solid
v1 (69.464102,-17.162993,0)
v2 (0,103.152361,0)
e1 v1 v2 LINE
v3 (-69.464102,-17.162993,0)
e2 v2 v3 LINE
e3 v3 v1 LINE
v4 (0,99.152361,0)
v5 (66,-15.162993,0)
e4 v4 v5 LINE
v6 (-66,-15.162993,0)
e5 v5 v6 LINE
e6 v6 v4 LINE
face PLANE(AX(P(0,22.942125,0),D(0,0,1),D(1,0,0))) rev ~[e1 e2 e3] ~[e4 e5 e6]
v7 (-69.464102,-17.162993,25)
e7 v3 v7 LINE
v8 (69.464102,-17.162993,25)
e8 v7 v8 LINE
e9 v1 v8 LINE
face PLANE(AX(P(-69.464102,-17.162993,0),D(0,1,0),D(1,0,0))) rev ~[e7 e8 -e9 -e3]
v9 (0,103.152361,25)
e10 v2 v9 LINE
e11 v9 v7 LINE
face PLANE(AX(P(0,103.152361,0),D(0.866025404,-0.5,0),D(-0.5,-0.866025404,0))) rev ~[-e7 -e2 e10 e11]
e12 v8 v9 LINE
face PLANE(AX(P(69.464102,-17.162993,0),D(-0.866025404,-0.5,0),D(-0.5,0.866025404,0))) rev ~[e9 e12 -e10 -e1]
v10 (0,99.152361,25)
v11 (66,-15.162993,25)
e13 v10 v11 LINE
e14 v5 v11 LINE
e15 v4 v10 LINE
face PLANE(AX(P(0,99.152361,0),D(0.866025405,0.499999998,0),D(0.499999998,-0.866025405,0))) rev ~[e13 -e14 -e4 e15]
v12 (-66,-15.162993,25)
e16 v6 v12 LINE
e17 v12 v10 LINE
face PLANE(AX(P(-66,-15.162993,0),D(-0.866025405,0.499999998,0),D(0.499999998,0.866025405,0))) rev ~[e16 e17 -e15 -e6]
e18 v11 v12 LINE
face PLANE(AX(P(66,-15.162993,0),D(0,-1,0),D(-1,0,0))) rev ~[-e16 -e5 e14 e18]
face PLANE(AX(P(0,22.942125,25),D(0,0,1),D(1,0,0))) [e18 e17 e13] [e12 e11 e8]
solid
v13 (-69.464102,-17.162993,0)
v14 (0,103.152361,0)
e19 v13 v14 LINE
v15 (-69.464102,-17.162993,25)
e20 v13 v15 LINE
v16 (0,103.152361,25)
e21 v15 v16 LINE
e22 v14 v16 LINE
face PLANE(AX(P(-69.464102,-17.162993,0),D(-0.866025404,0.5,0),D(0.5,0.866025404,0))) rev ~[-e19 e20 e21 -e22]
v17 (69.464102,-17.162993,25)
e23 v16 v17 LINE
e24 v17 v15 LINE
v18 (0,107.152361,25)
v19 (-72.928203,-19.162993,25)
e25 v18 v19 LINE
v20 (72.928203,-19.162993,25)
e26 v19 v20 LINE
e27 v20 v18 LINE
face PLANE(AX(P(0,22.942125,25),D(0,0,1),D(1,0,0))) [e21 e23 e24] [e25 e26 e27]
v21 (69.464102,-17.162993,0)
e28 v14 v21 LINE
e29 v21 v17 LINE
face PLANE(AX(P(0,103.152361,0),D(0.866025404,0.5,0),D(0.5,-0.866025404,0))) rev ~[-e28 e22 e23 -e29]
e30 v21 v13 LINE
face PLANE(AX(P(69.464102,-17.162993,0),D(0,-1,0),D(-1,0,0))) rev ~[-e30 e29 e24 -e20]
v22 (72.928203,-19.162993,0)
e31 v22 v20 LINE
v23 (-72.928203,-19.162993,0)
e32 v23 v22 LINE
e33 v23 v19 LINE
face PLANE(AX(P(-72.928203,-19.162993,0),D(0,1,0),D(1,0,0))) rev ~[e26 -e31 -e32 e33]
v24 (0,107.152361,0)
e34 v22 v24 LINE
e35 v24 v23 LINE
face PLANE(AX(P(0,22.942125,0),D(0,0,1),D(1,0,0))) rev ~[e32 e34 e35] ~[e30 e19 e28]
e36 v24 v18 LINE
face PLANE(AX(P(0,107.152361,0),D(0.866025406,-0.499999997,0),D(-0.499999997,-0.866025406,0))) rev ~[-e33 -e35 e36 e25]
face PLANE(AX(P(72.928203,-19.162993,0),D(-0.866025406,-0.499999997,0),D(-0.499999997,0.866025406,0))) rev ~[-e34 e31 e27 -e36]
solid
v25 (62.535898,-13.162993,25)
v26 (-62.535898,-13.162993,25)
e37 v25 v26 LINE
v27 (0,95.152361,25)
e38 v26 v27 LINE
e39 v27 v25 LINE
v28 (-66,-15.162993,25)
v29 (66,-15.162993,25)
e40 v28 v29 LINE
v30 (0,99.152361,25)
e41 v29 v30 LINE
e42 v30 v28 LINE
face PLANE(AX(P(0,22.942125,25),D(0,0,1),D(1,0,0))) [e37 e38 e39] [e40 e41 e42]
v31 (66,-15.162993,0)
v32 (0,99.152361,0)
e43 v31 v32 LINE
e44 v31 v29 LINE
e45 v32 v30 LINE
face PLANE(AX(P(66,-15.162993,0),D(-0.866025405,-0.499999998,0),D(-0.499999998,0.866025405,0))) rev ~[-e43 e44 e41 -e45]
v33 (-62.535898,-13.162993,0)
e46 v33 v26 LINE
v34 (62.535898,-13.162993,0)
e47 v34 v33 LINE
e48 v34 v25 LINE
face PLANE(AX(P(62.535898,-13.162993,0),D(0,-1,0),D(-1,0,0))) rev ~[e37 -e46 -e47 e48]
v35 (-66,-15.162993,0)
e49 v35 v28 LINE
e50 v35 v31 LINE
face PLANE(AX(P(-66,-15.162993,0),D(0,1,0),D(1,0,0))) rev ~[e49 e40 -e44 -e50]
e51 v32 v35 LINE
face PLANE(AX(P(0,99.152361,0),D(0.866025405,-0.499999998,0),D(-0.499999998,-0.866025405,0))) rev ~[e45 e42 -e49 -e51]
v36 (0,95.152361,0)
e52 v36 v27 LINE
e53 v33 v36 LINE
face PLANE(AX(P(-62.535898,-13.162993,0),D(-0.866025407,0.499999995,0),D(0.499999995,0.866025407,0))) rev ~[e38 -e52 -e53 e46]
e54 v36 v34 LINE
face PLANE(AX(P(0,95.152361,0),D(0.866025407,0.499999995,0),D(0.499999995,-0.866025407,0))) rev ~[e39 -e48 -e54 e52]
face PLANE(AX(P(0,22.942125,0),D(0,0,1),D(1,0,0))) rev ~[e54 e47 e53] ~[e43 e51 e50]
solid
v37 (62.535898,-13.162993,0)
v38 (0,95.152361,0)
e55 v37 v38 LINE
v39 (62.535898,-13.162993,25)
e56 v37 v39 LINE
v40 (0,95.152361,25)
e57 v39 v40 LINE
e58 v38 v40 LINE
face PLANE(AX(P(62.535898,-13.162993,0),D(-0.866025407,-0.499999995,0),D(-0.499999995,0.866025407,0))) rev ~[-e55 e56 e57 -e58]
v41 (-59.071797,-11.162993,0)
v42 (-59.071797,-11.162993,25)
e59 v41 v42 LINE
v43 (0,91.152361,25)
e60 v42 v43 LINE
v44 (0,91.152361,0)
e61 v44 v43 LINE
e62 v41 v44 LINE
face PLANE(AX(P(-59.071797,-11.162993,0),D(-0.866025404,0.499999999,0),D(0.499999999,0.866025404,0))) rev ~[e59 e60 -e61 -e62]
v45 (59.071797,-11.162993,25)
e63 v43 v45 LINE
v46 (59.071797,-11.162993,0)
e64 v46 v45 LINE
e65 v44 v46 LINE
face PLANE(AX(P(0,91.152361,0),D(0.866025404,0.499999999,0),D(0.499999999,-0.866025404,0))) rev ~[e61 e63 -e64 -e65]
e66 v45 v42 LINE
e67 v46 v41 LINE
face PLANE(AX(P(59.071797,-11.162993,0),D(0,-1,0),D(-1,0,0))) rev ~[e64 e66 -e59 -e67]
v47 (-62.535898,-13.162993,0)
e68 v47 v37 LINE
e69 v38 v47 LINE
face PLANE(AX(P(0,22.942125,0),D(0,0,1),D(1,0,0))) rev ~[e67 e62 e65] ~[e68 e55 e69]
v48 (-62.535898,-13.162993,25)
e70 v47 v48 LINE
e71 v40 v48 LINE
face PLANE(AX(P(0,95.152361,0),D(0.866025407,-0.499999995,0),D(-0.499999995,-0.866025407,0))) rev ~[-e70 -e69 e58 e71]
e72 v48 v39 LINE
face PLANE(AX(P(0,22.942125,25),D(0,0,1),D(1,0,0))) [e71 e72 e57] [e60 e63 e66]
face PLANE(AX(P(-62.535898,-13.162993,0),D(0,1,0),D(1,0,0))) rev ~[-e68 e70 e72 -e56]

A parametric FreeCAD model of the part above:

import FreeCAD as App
import Part
import Sketcher
from FreeCAD import Vector
Q = App.Units.Quantity

doc = App.newDocument("Part")
body = doc.addObject("PartDesign::Body", "Body")

# Sketch on XY plane
sketch1 = doc.addObject("Sketcher::SketchObject", "Sketch")
body.addObject(sketch1)
sketch1.AttachmentSupport = (doc.XY_Plane, [""])
sketch1.MapMode = "FlatFace"
sketch1.addGeometry([
    Part.LineSegment(Vector(73, -19, 0), Vector(0, 107, 0)),  # 0
    Part.LineSegment(Vector(0, 107, 0), Vector(-73, -19, 0)),  # 1
    Part.LineSegment(Vector(-73, -19, 0), Vector(73, -19, 0)),  # 2
    Part.LineSegment(Vector(69, -17, 0), Vector(-69, -17, 0)),  # 3
    Part.LineSegment(Vector(-69, -17, 0), Vector(0, 103, 0)),  # 4
    Part.LineSegment(Vector(0, 103, 0), Vector(69, -17, 0)),  # 5
], False)
sketch1.addConstraint([
    Sketcher.Constraint("Coincident", 0, 2, 1, 1),
    Sketcher.Constraint("Coincident", 1, 2, 2, 1),
    Sketcher.Constraint("Coincident", 2, 2, 0, 1),
    Sketcher.Constraint("Coincident", 3, 2, 4, 1),
    Sketcher.Constraint("Coincident", 4, 2, 5, 1),
    Sketcher.Constraint("Coincident", 5, 2, 3, 1),
    Sketcher.Constraint("Horizontal", 2),
    Sketcher.Constraint("Horizontal", 3),
    Sketcher.Constraint("PointOnObject", 0, 2, -2),
    Sketcher.Constraint("PointOnObject", 4, 2, -2),
    Sketcher.Constraint("Parallel", 1, 4),
    Sketcher.Constraint("Parallel", 0, 5),
    Sketcher.Constraint("Equal", 0, 1),
    Sketcher.Constraint("Angle", 0, Q("120 deg")),
    Sketcher.Constraint("DistanceY", 1, 2, 3, 2, Q("2 mm")),
    Sketcher.Constraint("DistanceY", 4, 2, 0, 2, Q("4 mm")),
    Sketcher.Constraint("DistanceX", 3, 2, -1, 1, Q("69.464102 mm")),
    Sketcher.Constraint("DistanceY", -1, 1, 0, 2, Q("107.152361 mm")),
])
pad1 = doc.addObject("PartDesign::Pad", "Pad")
body.addObject(pad1)
pad1.Profile = sketch1
pad1.Length = 25
body2 = doc.addObject("PartDesign::Body", "Body001")

# Sketch on XY plane
sketch2 = doc.addObject("Sketcher::SketchObject", "Sketch001")
body2.addObject(sketch2)
sketch2.AttachmentSupport = (doc.getObject("XY_Plane001"), [""])
sketch2.MapMode = "FlatFace"
sketch2.addGeometry([
    Part.LineSegment(Vector(69, -17, 0), Vector(0, 103, 0)),  # 0
    Part.LineSegment(Vector(0, 103, 0), Vector(-69, -17, 0)),  # 1
    Part.LineSegment(Vector(-69, -17, 0), Vector(69, -17, 0)),  # 2
    Part.LineSegment(Vector(0, 99, 0), Vector(66, -15, 0)),  # 3
    Part.LineSegment(Vector(66, -15, 0), Vector(-66, -15, 0)),  # 4
    Part.LineSegment(Vector(-66, -15, 0), Vector(0, 99, 0)),  # 5
], False)
sketch2.addConstraint([
    Sketcher.Constraint("Coincident", 0, 2, 1, 1),
    Sketcher.Constraint("Coincident", 1, 2, 2, 1),
    Sketcher.Constraint("Coincident", 2, 2, 0, 1),
    Sketcher.Constraint("Coincident", 3, 2, 4, 1),
    Sketcher.Constraint("Coincident", 4, 2, 5, 1),
    Sketcher.Constraint("Coincident", 5, 2, 3, 1),
    Sketcher.Constraint("Horizontal", 2),
    Sketcher.Constraint("Horizontal", 4),
    Sketcher.Constraint("PointOnObject", 0, 2, -2),
    Sketcher.Constraint("PointOnObject", 5, 2, -2),
    Sketcher.Constraint("Parallel", 0, 3),
    Sketcher.Constraint("Parallel", 1, 5),
    Sketcher.Constraint("Equal", 0, 1),
    Sketcher.Constraint("DistanceX", 4, 2, 4, 1, Q("132 mm")),
    Sketcher.Constraint("Angle", 0, Q("120 deg")),
    Sketcher.Constraint("DistanceY", 2, 2, 3, 2, Q("2 mm")),
    Sketcher.Constraint("DistanceY", 5, 2, 0, 2, Q("4 mm")),
    Sketcher.Constraint("DistanceY", -1, 1, 0, 2, Q("103.152361 mm")),
])
pad2 = doc.addObject("PartDesign::Pad", "Pad001")
body2.addObject(pad2)
pad2.Profile = sketch2
pad2.Length = 25
body3 = doc.addObject("PartDesign::Body", "Body002")

# Sketch on XY plane
sketch3 = doc.addObject("Sketcher::SketchObject", "Sketch002")
body3.addObject(sketch3)
sketch3.AttachmentSupport = (doc.getObject("XY_Plane002"), [""])
sketch3.MapMode = "FlatFace"
sketch3.addGeometry([
    Part.LineSegment(Vector(0, 95, 0), Vector(-63, -13, 0)),  # 0
    Part.LineSegment(Vector(-63, -13, 0), Vector(63, -13, 0)),  # 1
    Part.LineSegment(Vector(63, -13, 0), Vector(0, 95, 0)),  # 2
    Part.LineSegment(Vector(59, -11, 0), Vector(-59, -11, 0)),  # 3
    Part.LineSegment(Vector(-59, -11, 0), Vector(0, 91, 0)),  # 4
    Part.LineSegment(Vector(0, 91, 0), Vector(59, -11, 0)),  # 5
], False)
sketch3.addConstraint([
    Sketcher.Constraint("Coincident", 0, 2, 1, 1),
    Sketcher.Constraint("Coincident", 1, 2, 2, 1),
    Sketcher.Constraint("Coincident", 2, 2, 0, 1),
    Sketcher.Constraint("Coincident", 3, 2, 4, 1),
    Sketcher.Constraint("Coincident", 4, 2, 5, 1),
    Sketcher.Constraint("Coincident", 5, 2, 3, 1),
    Sketcher.Constraint("Horizontal", 1),
    Sketcher.Constraint("Horizontal", 3),
    Sketcher.Constraint("PointOnObject", 2, 2, -2),
    Sketcher.Constraint("PointOnObject", 4, 2, -2),
    Sketcher.Constraint("Parallel", 0, 4),
    Sketcher.Constraint("Parallel", 2, 5),
    Sketcher.Constraint("Equal", 0, 2),
    Sketcher.Constraint("Angle", 0, Q("-120 deg")),
    Sketcher.Constraint("DistanceY", 0, 2, 3, 2, Q("2 mm")),
    Sketcher.Constraint("DistanceY", 4, 2, 2, 2, Q("4 mm")),
    Sketcher.Constraint("DistanceX", 0, 2, -1, 1, Q("62.535898 mm")),
    Sketcher.Constraint("DistanceY", -1, 1, 2, 2, Q("95.152361 mm")),
])
pad3 = doc.addObject("PartDesign::Pad", "Pad002")
body3.addObject(pad3)
pad3.Profile = sketch3
pad3.Length = 25
body4 = doc.addObject("PartDesign::Body", "Body003")

# Sketch on XY plane
sketch4 = doc.addObject("Sketcher::SketchObject", "Sketch003")
body4.addObject(sketch4)
sketch4.AttachmentSupport = (doc.getObject("XY_Plane003"), [""])
sketch4.MapMode = "FlatFace"
sketch4.addGeometry([
    Part.LineSegment(Vector(0, 99, 0), Vector(-66, -15, 0)),  # 0
    Part.LineSegment(Vector(-66, -15, 0), Vector(66, -15, 0)),  # 1
    Part.LineSegment(Vector(66, -15, 0), Vector(0, 99, 0)),  # 2
    Part.LineSegment(Vector(0, 95, 0), Vector(63, -13, 0)),  # 3
    Part.LineSegment(Vector(63, -13, 0), Vector(-63, -13, 0)),  # 4
    Part.LineSegment(Vector(-63, -13, 0), Vector(0, 95, 0)),  # 5
], False)
sketch4.addConstraint([
    Sketcher.Constraint("Coincident", 0, 2, 1, 1),
    Sketcher.Constraint("Coincident", 1, 2, 2, 1),
    Sketcher.Constraint("Coincident", 2, 2, 0, 1),
    Sketcher.Constraint("Coincident", 3, 2, 4, 1),
    Sketcher.Constraint("Coincident", 4, 2, 5, 1),
    Sketcher.Constraint("Coincident", 5, 2, 3, 1),
    Sketcher.Constraint("Horizontal", 1),
    Sketcher.Constraint("Horizontal", 4),
    Sketcher.Constraint("PointOnObject", 2, 2, -2),
    Sketcher.Constraint("PointOnObject", 5, 2, -2),
    Sketcher.Constraint("Parallel", 2, 3),
    Sketcher.Constraint("Parallel", 0, 5),
    Sketcher.Constraint("Equal", 0, 2),
    Sketcher.Constraint("DistanceX", 1, 1, 1, 2, Q("132 mm")),
    Sketcher.Constraint("Angle", 0, Q("-120 deg")),
    Sketcher.Constraint("DistanceY", 1, 2, 3, 2, Q("2 mm")),
    Sketcher.Constraint("DistanceY", 5, 2, 2, 2, Q("4 mm")),
    Sketcher.Constraint("DistanceY", -1, 1, 2, 2, Q("99.152361 mm")),
])
pad4 = doc.addObject("PartDesign::Pad", "Pad003")
body4.addObject(pad4)
pad4.Profile = sketch4
pad4.Length = 25

doc.recompute()
